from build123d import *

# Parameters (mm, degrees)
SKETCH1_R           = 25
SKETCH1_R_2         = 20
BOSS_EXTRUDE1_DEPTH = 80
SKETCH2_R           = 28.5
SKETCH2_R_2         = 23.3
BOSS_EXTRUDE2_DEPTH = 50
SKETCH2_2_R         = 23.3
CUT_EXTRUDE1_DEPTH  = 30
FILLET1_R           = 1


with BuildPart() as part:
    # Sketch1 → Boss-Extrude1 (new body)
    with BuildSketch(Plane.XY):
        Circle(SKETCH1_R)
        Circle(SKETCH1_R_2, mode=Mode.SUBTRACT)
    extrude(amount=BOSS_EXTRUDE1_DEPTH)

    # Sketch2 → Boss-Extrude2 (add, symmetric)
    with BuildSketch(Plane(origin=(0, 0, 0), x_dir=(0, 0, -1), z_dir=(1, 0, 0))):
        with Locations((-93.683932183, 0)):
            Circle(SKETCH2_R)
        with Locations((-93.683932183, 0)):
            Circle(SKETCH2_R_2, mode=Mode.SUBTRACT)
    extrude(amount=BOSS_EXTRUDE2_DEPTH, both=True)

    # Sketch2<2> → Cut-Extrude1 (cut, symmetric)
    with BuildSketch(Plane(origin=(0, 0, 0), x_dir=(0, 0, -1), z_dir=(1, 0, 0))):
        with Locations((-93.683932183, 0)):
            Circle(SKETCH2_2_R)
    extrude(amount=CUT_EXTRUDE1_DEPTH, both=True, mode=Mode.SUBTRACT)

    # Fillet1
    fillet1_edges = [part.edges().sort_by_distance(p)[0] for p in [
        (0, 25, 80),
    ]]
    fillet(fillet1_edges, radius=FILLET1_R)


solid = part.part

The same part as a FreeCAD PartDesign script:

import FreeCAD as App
import Part
import Sketcher


def edges_at(feature, points):
    """Names of the edges that pass closest to the given points."""
    edges = feature.Shape.Edges
    near = lambda p: min(range(len(edges)), key=lambda i: edges[i].distToShape(Part.Vertex(*p))[0])
    return sorted({f"Edge{near(p) + 1}" for p in points})

doc = App.newDocument("Part")
body = doc.addObject("PartDesign::Body", "Body")

# Sketch on XY plane
sketch1 = body.newObject("Sketcher::SketchObject", "Sketch")
sketch1.AttachmentSupport = (doc.getObject("XY_Plane"), [""])
sketch1.MapMode = "FlatFace"
sketch1.addGeometry([
    Part.Circle(App.Vector(0, 0, 0), App.Vector(0, 0, 1), 25),
    Part.Circle(App.Vector(0, 0, 0), App.Vector(0, 0, 1), 20),
], False)
sketch1.addConstraint([
    Sketcher.Constraint("Coincident", 0, 3, -1, 1),
    Sketcher.Constraint("Coincident", 1, 3, -1, 1),
    Sketcher.Constraint("Diameter", 0, 50.0),
    Sketcher.Constraint("Diameter", 1, 40.0),
])
pad1 = body.newObject("PartDesign::Pad", "Pad")
pad1.Profile = sketch1
pad1.Length = 80

# Sketch on YZ plane
sketch2 = body.newObject("Sketcher::SketchObject", "Sketch001")
sketch2.AttachmentSupport = (doc.getObject("YZ_Plane"), [""])
sketch2.MapMode = "FlatFace"
sketch2.addGeometry([
    Part.Circle(App.Vector(0, 94, 0), App.Vector(0, 0, 1), 28),
    Part.Circle(App.Vector(0, 94, 0), App.Vector(0, 0, 1), 23),
], False)
sketch2.addConstraint([
    Sketcher.Constraint("Coincident", 1, 3, 0, 3),
    Sketcher.Constraint("PointOnObject", 0, 3, -2),
    Sketcher.Constraint("Diameter", 0, 57.0),
    Sketcher.Constraint("Diameter", 1, 46.6),
    Sketcher.Constraint("DistanceY", -1, 1, 0, 3, 93.683932),
])
pad2 = body.newObject("PartDesign::Pad", "Pad001")
pad2.Profile = sketch2
pad2.Length = 100
pad2.Midplane = True

# Sketch on YZ plane
sketch3 = body.newObject("Sketcher::SketchObject", "Sketch002")
sketch3.AttachmentSupport = (doc.getObject("YZ_Plane"), [""])
sketch3.MapMode = "FlatFace"
sketch3.addGeometry(Part.Circle(App.Vector(0, 94, 0), App.Vector(0, 0, 1), 23), False)
sketch3.addConstraint([
    Sketcher.Constraint("PointOnObject", 0, 3, -2),
    Sketcher.Constraint("Diameter", 0, 46.6),
    Sketcher.Constraint("DistanceY", -1, 1, 0, 3, 93.683932),
])
pocket1 = body.newObject("PartDesign::Pocket", "Pocket")
pocket1.Profile = sketch3
pocket1.Length = 60
pocket1.Midplane = True
doc.recompute()

fillet = body.newObject("PartDesign::Fillet", "Fillet")
fillet.Base = (pocket1, edges_at(pocket1, [(0, 25, 80)]))
fillet.Radius = 1

doc.recompute()
